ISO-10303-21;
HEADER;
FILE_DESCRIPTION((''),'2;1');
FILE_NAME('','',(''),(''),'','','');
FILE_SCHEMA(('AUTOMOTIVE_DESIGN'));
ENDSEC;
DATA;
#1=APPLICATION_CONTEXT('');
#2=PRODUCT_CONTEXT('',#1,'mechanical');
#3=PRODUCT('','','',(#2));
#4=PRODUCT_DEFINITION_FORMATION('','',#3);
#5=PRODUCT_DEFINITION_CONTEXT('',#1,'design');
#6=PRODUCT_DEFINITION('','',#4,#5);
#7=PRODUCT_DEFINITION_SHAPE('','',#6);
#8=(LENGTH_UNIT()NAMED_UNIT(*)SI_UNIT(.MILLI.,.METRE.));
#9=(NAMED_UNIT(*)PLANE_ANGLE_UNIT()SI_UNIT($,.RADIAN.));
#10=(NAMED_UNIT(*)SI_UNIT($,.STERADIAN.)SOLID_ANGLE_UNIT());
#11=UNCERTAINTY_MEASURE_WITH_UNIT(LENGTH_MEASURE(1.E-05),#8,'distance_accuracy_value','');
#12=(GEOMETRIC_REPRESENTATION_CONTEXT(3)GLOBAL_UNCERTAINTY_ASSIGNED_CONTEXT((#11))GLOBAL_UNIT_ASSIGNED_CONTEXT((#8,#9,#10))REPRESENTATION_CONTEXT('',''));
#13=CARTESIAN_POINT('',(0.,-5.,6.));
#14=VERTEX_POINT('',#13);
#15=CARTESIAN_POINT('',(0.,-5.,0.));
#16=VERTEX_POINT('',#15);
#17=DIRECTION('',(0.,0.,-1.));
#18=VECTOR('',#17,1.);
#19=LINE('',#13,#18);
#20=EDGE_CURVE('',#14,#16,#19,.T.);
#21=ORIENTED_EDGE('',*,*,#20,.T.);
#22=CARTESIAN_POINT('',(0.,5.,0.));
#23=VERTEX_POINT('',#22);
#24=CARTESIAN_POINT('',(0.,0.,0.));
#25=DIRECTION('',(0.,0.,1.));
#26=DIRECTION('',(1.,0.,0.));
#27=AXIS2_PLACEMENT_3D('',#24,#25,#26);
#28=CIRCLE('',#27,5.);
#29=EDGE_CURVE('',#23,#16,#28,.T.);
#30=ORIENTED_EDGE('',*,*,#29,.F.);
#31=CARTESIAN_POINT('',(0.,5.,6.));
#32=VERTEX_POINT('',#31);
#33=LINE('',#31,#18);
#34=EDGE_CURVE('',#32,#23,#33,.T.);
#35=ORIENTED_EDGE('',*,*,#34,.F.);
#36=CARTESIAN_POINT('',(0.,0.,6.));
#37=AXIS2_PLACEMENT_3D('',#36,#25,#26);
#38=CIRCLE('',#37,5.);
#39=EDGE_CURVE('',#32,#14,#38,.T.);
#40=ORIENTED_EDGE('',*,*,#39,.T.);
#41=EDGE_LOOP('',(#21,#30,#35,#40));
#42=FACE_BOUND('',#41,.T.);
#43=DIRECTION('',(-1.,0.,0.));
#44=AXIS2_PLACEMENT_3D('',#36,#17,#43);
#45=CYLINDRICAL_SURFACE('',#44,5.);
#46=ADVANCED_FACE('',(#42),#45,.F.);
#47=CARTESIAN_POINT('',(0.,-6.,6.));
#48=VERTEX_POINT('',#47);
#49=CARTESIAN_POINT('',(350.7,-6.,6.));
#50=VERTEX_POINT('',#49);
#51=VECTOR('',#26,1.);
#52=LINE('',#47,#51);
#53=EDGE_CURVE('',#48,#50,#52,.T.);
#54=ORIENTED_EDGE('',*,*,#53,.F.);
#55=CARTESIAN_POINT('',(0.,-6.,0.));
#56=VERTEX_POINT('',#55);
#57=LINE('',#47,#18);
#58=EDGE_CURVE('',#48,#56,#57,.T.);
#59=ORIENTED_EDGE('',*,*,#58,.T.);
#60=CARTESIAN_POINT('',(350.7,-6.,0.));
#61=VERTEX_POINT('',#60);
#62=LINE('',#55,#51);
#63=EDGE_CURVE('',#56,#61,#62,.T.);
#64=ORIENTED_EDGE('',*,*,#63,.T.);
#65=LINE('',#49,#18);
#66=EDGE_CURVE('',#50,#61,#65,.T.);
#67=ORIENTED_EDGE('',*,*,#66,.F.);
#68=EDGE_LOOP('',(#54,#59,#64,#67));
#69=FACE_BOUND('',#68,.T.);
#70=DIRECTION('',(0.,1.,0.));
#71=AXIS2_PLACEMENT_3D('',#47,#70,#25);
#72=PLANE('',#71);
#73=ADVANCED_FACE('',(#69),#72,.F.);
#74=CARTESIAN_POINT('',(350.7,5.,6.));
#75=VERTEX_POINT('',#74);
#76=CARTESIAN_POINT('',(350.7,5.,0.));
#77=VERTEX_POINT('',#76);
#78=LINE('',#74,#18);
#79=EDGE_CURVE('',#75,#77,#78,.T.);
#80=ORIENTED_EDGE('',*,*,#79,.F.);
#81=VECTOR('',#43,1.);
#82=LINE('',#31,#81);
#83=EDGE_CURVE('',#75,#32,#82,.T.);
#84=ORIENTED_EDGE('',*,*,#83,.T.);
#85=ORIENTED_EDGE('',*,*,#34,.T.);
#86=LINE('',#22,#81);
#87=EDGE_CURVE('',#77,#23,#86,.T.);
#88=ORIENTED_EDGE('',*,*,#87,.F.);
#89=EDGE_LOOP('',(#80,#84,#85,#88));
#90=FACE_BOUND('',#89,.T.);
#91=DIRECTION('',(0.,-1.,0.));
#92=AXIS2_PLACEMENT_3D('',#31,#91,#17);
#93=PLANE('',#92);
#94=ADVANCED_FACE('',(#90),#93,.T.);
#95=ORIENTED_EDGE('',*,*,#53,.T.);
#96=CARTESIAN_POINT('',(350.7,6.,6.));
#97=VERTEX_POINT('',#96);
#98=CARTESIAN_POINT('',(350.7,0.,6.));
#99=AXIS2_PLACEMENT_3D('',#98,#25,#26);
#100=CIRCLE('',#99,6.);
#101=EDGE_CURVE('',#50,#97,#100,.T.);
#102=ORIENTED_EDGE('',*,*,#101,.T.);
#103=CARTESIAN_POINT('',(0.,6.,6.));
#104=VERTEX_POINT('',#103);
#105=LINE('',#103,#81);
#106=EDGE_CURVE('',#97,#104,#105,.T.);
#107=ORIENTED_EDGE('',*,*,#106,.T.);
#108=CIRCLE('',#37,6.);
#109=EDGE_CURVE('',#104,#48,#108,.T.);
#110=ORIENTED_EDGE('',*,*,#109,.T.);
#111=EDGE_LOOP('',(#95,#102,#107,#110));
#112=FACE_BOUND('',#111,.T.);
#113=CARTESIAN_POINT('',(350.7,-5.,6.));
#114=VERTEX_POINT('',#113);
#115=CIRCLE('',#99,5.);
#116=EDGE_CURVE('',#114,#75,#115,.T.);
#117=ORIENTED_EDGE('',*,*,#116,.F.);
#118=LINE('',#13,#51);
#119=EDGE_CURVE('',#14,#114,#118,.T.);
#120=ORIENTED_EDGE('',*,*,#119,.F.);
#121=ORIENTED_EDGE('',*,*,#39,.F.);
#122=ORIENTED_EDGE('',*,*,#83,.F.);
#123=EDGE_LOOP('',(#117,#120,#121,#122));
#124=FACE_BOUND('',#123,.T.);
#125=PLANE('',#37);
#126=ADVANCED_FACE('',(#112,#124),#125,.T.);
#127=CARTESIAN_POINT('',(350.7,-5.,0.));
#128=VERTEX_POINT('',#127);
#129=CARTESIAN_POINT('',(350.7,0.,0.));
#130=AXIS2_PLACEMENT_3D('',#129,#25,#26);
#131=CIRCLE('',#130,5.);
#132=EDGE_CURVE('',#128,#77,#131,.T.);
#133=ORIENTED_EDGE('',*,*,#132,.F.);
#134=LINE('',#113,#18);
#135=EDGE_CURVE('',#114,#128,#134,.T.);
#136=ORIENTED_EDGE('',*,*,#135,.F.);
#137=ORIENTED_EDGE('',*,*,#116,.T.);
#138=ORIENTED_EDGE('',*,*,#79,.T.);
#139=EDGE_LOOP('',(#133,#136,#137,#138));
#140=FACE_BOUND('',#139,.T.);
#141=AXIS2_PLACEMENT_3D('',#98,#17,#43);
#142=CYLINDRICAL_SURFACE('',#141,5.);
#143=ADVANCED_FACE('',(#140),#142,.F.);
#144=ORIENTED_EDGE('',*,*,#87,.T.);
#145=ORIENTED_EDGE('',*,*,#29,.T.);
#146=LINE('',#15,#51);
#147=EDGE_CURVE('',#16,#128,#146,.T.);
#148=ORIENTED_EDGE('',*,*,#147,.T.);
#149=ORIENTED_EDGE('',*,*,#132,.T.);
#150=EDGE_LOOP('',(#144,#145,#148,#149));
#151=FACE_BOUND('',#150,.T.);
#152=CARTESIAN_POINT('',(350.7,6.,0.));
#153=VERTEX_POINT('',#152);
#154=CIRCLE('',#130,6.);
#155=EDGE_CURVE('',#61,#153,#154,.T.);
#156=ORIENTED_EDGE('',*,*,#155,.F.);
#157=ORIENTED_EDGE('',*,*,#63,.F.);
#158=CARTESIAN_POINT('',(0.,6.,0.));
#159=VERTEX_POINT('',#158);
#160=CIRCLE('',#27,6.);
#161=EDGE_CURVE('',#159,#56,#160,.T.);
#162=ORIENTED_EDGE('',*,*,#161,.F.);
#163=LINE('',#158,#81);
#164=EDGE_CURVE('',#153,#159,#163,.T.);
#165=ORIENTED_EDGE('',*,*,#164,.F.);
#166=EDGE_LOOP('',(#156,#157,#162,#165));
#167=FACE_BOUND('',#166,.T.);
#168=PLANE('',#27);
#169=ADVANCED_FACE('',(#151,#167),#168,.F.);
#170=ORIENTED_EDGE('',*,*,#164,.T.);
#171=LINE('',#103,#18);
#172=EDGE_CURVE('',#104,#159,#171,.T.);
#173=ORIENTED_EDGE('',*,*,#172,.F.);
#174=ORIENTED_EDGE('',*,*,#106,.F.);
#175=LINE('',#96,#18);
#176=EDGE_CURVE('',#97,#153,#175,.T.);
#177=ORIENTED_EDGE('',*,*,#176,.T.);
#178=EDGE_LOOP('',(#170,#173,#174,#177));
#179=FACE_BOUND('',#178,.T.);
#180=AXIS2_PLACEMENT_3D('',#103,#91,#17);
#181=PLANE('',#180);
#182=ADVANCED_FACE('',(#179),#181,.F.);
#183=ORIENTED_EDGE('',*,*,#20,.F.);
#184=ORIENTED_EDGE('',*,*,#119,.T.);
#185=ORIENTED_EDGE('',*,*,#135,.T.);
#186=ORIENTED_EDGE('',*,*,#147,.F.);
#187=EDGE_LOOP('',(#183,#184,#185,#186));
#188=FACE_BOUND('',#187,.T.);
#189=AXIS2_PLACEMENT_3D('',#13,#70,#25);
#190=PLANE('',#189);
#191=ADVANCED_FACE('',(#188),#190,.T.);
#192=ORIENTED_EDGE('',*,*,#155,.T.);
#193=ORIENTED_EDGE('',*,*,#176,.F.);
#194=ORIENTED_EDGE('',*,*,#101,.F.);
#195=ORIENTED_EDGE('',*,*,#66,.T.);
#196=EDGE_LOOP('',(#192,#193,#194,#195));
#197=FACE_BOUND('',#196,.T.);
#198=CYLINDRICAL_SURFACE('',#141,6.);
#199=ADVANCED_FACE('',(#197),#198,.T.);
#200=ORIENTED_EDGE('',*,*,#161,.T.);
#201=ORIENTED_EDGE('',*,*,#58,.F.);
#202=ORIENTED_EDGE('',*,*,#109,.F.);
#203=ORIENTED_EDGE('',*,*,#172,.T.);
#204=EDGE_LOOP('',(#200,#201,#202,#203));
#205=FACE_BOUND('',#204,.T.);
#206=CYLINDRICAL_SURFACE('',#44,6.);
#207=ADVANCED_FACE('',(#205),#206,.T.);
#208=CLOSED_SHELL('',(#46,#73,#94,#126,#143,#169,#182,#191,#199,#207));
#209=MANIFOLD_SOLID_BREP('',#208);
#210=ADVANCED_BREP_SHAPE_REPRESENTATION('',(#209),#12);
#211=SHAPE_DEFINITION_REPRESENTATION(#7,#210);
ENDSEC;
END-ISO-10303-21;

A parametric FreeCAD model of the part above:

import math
import FreeCAD as App
import Part
import Sketcher
from FreeCAD import Vector
Q = App.Units.Quantity

doc = App.newDocument("Part")
body = doc.addObject("PartDesign::Body", "Body")

# Sketch on XY plane
sketch1 = body.newObject("Sketcher::SketchObject", "Sketch")
sketch1.AttachmentSupport = (doc.getObject("XY_Plane"), [""])
sketch1.MapMode = "FlatFace"
sketch1.addGeometry(Part.LineSegment(Vector(350.7, 6, 0), Vector(0, 6, 0)), False)
sketch1.addGeometry(Part.ArcOfCircle(Part.Circle(Vector(0, 0, 0), Vector(0, 0, 1), 6), math.radians(90), math.radians(270)), False)
sketch1.addGeometry(Part.LineSegment(Vector(0, -6, 0), Vector(350.7, -6, 0)), False)
sketch1.addGeometry(Part.ArcOfCircle(Part.Circle(Vector(350.7, 0, 0), Vector(0, 0, 1), 6), math.radians(-90), math.radians(90)), False)
sketch1.addGeometry(Part.LineSegment(Vector(0, 5, 0), Vector(350.7, 5, 0)), False)
sketch1.addGeometry(Part.ArcOfCircle(Part.Circle(Vector(350.7, 0, 0), Vector(0, 0, 1), 5), math.radians(-90), math.radians(90)), False)
sketch1.addGeometry(Part.LineSegment(Vector(350.7, -5, 0), Vector(0, -5, 0)), False)
sketch1.addGeometry(Part.ArcOfCircle(Part.Circle(Vector(0, 0, 0), Vector(0, 0, 1), 5), math.radians(90), math.radians(270)), False)
sketch1.addConstraint(Sketcher.Constraint("Tangent", 0, 2, 1, 1))
sketch1.addConstraint(Sketcher.Constraint("Tangent", 1, 2, 2, 1))
sketch1.addConstraint(Sketcher.Constraint("Tangent", 2, 2, 3, 1))
sketch1.addConstraint(Sketcher.Constraint("Tangent", 3, 2, 0, 1))
sketch1.addConstraint(Sketcher.Constraint("Tangent", 4, 2, 5, 2))
sketch1.addConstraint(Sketcher.Constraint("Tangent", 5, 1, 6, 1))
sketch1.addConstraint(Sketcher.Constraint("Tangent", 6, 2, 7, 2))
sketch1.addConstraint(Sketcher.Constraint("Tangent", 7, 1, 4, 1))
sketch1.addConstraint(Sketcher.Constraint("Horizontal", 0))
sketch1.addConstraint(Sketcher.Constraint("Horizontal", 2))
sketch1.addConstraint(Sketcher.Constraint("Horizontal", 4))
sketch1.addConstraint(Sketcher.Constraint("Horizontal", 6))
sketch1.addConstraint(Sketcher.Constraint("Coincident", 1, 3, -1, 1))
sketch1.addConstraint(Sketcher.Constraint("Coincident", 7, 3, -1, 1))
sketch1.addConstraint(Sketcher.Constraint("Vertical", 5, 3, 2, 2))
sketch1.addConstraint(Sketcher.Constraint("Radius", 1, Q("6 mm")))
sketch1.addConstraint(Sketcher.Constraint("Radius", 5, Q("5 mm")))
sketch1.addConstraint(Sketcher.Constraint("DistanceX", 0, 2, 0, 1, Q("350.7 mm")))
pad1 = body.newObject("PartDesign::Pad", "Pad")
pad1.Profile = sketch1
pad1.Length = 6

doc.recompute()
